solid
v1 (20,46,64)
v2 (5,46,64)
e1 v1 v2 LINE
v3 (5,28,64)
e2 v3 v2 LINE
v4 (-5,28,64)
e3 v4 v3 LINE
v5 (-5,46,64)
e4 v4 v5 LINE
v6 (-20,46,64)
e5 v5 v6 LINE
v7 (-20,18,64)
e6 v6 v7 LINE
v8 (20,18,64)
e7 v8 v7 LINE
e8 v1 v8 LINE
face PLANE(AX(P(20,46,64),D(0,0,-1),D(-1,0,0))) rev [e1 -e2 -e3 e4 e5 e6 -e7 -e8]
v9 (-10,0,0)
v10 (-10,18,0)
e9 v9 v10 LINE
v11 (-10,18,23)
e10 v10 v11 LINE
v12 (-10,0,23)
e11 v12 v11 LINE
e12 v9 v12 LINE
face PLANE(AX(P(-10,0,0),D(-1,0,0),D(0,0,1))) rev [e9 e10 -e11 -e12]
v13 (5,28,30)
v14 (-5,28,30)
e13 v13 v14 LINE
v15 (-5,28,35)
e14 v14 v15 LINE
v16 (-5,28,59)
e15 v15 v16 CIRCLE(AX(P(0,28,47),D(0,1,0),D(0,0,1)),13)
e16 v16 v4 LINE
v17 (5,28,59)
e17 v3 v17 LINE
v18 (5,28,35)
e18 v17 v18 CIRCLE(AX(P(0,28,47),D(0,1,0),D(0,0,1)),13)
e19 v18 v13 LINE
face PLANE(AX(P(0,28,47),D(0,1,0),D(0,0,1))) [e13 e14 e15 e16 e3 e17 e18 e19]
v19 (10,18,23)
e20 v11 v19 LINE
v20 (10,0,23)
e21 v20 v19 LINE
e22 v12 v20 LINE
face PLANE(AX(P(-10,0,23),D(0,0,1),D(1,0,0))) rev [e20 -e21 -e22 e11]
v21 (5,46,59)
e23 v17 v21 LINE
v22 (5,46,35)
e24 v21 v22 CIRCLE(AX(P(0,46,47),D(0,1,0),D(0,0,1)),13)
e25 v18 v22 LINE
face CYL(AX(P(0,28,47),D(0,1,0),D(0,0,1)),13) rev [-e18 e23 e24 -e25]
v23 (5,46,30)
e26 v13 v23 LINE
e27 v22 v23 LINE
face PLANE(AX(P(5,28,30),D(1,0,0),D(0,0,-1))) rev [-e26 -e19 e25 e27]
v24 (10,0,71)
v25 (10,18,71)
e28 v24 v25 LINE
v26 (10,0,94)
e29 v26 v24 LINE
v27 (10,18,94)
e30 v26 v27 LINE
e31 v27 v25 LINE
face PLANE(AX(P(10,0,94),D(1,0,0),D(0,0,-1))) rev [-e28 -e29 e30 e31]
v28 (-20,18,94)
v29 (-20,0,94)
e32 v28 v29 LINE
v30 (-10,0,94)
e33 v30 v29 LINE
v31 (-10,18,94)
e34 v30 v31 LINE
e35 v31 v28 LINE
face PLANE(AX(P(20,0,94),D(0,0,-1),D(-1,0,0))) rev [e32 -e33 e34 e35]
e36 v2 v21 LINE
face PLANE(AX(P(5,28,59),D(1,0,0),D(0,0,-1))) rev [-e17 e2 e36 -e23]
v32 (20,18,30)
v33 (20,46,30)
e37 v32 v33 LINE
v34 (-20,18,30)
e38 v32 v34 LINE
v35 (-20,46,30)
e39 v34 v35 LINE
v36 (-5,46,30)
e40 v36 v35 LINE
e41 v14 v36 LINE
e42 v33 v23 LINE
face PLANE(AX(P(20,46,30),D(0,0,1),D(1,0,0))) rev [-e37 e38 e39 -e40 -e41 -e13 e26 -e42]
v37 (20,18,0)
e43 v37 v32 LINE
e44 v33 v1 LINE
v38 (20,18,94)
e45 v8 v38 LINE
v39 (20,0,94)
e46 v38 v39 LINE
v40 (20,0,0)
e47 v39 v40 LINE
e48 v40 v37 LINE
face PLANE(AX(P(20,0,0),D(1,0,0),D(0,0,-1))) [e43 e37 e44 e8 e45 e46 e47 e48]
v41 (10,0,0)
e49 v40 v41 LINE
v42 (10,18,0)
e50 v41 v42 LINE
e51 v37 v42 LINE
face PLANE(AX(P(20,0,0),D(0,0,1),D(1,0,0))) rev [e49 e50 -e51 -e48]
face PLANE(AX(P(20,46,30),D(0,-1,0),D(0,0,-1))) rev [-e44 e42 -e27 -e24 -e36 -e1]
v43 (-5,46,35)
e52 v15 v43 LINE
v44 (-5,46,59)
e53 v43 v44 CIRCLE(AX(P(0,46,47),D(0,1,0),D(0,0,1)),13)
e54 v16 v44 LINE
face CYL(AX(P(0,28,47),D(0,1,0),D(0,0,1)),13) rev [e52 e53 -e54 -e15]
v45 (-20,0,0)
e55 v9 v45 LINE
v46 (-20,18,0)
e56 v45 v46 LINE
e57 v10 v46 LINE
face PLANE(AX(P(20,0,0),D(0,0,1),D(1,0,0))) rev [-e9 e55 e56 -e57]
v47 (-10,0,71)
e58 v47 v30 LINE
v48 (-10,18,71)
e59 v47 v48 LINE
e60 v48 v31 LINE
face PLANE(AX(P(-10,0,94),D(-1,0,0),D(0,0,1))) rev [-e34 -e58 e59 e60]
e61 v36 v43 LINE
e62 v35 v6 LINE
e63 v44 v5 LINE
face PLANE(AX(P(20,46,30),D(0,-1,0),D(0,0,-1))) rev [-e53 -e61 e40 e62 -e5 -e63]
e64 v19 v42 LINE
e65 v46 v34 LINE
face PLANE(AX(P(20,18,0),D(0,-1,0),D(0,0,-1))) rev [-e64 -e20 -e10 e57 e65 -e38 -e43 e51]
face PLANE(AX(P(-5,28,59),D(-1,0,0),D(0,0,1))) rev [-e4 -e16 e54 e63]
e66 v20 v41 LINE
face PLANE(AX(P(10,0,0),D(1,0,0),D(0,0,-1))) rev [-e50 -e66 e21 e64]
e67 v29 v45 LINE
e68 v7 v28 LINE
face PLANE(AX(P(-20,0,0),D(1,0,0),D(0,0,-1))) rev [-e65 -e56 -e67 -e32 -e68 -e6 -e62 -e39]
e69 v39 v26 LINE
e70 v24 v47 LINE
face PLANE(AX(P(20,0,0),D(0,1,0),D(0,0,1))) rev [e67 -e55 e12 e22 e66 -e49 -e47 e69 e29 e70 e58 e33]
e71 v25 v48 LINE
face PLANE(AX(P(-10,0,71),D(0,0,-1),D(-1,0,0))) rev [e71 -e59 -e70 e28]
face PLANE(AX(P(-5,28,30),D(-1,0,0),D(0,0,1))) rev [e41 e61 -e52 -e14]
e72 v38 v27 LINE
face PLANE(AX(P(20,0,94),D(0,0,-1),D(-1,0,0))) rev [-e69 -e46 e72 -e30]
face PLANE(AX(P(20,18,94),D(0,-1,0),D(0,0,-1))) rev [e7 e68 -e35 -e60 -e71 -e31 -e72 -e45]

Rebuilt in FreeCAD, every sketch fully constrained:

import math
import FreeCAD as App
import Part
import Sketcher

V = App.Vector
Q = App.Units.Quantity


def add_polygon(sketch, points):
    """Adds a closed chain of lines whose ends are joined by coincident constraints."""
    first, n = sketch.GeometryCount, len(points)
    for a, b in zip(points, points[1:] + points[:1]):
        sketch.addGeometry(Part.LineSegment(App.Vector(*a, 0), App.Vector(*b, 0)), False)
    for i in range(n):
        sketch.addConstraint(Sketcher.Constraint("Coincident", first + i, 2, first + (i + 1) % n, 1))

doc = App.newDocument("Part")
body = doc.addObject("PartDesign::Body", "Body")

# Sketch on YZ plane
sketch1 = body.newObject("Sketcher::SketchObject", "Sketch")
sketch1.AttachmentSupport = (doc.getObject("YZ_Plane"), [""])
sketch1.MapMode = "FlatFace"
add_polygon(sketch1, [(0, 94), (0, 0), (18, 0), (18, 30), (46, 30), (46, 64), (18, 64), (18, 94)])  # lines 0-7
sketch1.addConstraint(Sketcher.Constraint("Vertical", 0))
sketch1.addConstraint(Sketcher.Constraint("Horizontal", 1))
sketch1.addConstraint(Sketcher.Constraint("Vertical", 2))
sketch1.addConstraint(Sketcher.Constraint("Horizontal", 3))
sketch1.addConstraint(Sketcher.Constraint("Vertical", 4))
sketch1.addConstraint(Sketcher.Constraint("Horizontal", 5))
sketch1.addConstraint(Sketcher.Constraint("Vertical", 6))
sketch1.addConstraint(Sketcher.Constraint("Horizontal", 7))
sketch1.addConstraint(Sketcher.Constraint("Coincident", 0, 2, -1, 1))
sketch1.addConstraint(Sketcher.Constraint("Vertical", 2, 2, 5, 2))
sketch1.addConstraint(Sketcher.Constraint("Equal", 2, 6))
sketch1.addConstraint(Sketcher.Constraint("DistanceX", 1, 1, 1, 2, Q("18 mm")))
sketch1.addConstraint(Sketcher.Constraint("DistanceX", 3, 1, 3, 2, Q("28 mm")))
sketch1.addConstraint(Sketcher.Constraint("DistanceY", 0, 2, 0, 1, Q("94 mm")))
sketch1.addConstraint(Sketcher.Constraint("DistanceY", 2, 1, 2, 2, Q("30 mm")))
pad1 = body.newObject("PartDesign::Pad", "Pad")
pad1.Profile = sketch1
pad1.Length = 40
pad1.Midplane = True

# Sketch on XZ plane
sketch2 = body.newObject("Sketcher::SketchObject", "Sketch001")
sketch2.AttachmentSupport = (doc.getObject("XZ_Plane"), [""])
sketch2.MapMode = "FlatFace"
sketch2.AttachmentOffset = App.Placement(V(0, 0, -18), App.Rotation())
add_polygon(sketch2, [(-10, 71), (-10, 94), (10, 94), (10, 71)])  # lines 0-3
add_polygon(sketch2, [(-10, 0), (-10, 23), (10, 23), (10, 0)])  # lines 4-7
sketch2.addConstraint(Sketcher.Constraint("Vertical", 0))
sketch2.addConstraint(Sketcher.Constraint("Horizontal", 1))
sketch2.addConstraint(Sketcher.Constraint("Vertical", 2))
sketch2.addConstraint(Sketcher.Constraint("Horizontal", 3))
sketch2.addConstraint(Sketcher.Constraint("Vertical", 4))
sketch2.addConstraint(Sketcher.Constraint("Horizontal", 5))
sketch2.addConstraint(Sketcher.Constraint("Vertical", 6))
sketch2.addConstraint(Sketcher.Constraint("Horizontal", 7))
sketch2.addConstraint(Sketcher.Constraint("Symmetric", 6, 2, 7, 2, -1, 1))
sketch2.addConstraint(Sketcher.Constraint("Vertical", 3, 2, 4, 2))
sketch2.addConstraint(Sketcher.Constraint("Vertical", 2, 2, 5, 2))
sketch2.addConstraint(Sketcher.Constraint("Equal", 2, 4))
sketch2.addConstraint(Sketcher.Constraint("DistanceX", 1, 1, 1, 2, Q("20 mm")))
sketch2.addConstraint(Sketcher.Constraint("DistanceY", 0, 1, 0, 2, Q("23 mm")))
sketch2.addConstraint(Sketcher.Constraint("DistanceY", -1, 1, 0, 2, Q("94 mm")))
pocket1 = body.newObject("PartDesign::Pocket", "Pocket")
pocket1.Profile = sketch2
pocket1.Type = "ThroughAll"
pocket1.Reversed = True

# Sketch on XZ plane
sketch3 = body.newObject("Sketcher::SketchObject", "Sketch002")
sketch3.AttachmentSupport = (doc.getObject("XZ_Plane"), [""])
sketch3.MapMode = "FlatFace"
sketch3.AttachmentOffset = App.Placement(V(0, 0, -46), App.Rotation())
sketch3.addGeometry(Part.LineSegment(V(5, 64, 0), V(5, 59, 0)), False)
sketch3.addGeometry(Part.ArcOfCircle(Part.Circle(V(0, 47, 0), V(0, 0, 1), 13), math.radians(-67.380135), math.radians(67.380135)), False)
sketch3.addGeometry(Part.LineSegment(V(5, 35, 0), V(5, 30, 0)), False)
sketch3.addGeometry(Part.LineSegment(V(5, 30, 0), V(-5, 30, 0)), False)
sketch3.addGeometry(Part.LineSegment(V(-5, 30, 0), V(-5, 35, 0)), False)
sketch3.addGeometry(Part.ArcOfCircle(Part.Circle(V(0, 47, 0), V(0, 0, 1), 13), math.radians(112.619865), math.radians(247.380135)), False)
sketch3.addGeometry(Part.LineSegment(V(-5, 59, 0), V(-5, 64, 0)), False)
sketch3.addGeometry(Part.LineSegment(V(-5, 64, 0), V(5, 64, 0)), False)
sketch3.addConstraint(Sketcher.Constraint("Coincident", 0, 2, 1, 2))
sketch3.addConstraint(Sketcher.Constraint("Coincident", 1, 1, 2, 1))
sketch3.addConstraint(Sketcher.Constraint("Coincident", 2, 2, 3, 1))
sketch3.addConstraint(Sketcher.Constraint("Coincident", 3, 2, 4, 1))
sketch3.addConstraint(Sketcher.Constraint("Coincident", 4, 2, 5, 2))
sketch3.addConstraint(Sketcher.Constraint("Coincident", 5, 1, 6, 1))
sketch3.addConstraint(Sketcher.Constraint("Coincident", 6, 2, 7, 1))
sketch3.addConstraint(Sketcher.Constraint("Coincident", 7, 2, 0, 1))
sketch3.addConstraint(Sketcher.Constraint("Vertical", 0))
sketch3.addConstraint(Sketcher.Constraint("Vertical", 2))
sketch3.addConstraint(Sketcher.Constraint("Horizontal", 3))
sketch3.addConstraint(Sketcher.Constraint("Vertical", 4))
sketch3.addConstraint(Sketcher.Constraint("Vertical", 6))
sketch3.addConstraint(Sketcher.Constraint("Horizontal", 7))
sketch3.addConstraint(Sketcher.Constraint("Coincident", 5, 3, 1, 3))
sketch3.addConstraint(Sketcher.Constraint("Equal", 1, 5))
sketch3.addConstraint(Sketcher.Constraint("Symmetric", 1, 1, 4, 2, -2))
sketch3.addConstraint(Sketcher.Constraint("Horizontal", 0, 2, 5, 1))
sketch3.addConstraint(Sketcher.Constraint("Vertical", 0, 2, 1, 1))
sketch3.addConstraint(Sketcher.Constraint("Equal", 0, 2))
sketch3.addConstraint(Sketcher.Constraint("Radius", 1, Q("13 mm")))
sketch3.addConstraint(Sketcher.Constraint("DistanceX", 3, 2, 3, 1, Q("10 mm")))
sketch3.addConstraint(Sketcher.Constraint("DistanceY", 0, 2, 0, 1, Q("5 mm")))
sketch3.addConstraint(Sketcher.Constraint("DistanceY", -1, 1, 1, 3, Q("47 mm")))
pocket2 = body.newObject("PartDesign::Pocket", "Pocket001")
pocket2.Profile = sketch3
pocket2.Length = 18
pocket2.Reversed = True

doc.recompute()
